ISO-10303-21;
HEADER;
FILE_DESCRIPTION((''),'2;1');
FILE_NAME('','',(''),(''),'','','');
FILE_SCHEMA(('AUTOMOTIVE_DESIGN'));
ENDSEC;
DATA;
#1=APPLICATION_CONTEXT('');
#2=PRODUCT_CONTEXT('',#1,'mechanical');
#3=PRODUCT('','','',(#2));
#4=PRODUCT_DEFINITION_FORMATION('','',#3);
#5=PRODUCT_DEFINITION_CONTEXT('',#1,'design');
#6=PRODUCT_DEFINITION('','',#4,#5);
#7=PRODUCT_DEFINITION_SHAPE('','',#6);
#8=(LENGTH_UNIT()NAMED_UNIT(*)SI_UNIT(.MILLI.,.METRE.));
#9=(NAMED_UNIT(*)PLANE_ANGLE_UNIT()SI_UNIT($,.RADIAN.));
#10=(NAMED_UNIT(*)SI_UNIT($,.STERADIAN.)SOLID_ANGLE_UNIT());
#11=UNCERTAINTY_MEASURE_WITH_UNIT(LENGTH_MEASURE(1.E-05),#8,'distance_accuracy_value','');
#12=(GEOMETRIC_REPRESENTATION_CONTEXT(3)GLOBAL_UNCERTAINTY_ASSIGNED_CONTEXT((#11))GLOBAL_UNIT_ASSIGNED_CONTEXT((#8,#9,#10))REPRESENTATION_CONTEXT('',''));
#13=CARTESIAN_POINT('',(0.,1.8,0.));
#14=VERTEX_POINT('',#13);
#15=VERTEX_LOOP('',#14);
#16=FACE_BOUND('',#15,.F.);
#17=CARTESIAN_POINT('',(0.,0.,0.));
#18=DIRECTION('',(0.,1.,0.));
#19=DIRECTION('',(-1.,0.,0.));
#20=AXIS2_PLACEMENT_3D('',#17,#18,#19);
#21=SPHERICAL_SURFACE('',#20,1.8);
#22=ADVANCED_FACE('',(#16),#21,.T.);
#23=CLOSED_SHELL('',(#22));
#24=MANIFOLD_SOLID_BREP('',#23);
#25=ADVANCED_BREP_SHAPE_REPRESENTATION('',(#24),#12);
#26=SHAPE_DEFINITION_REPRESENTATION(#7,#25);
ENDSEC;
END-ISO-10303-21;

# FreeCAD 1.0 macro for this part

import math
import FreeCAD as App
import Part
import Sketcher

doc = App.newDocument("Part")
body = doc.addObject("PartDesign::Body", "Body")

sketch1 = body.newObject("Sketcher::SketchObject", "Sketch")
sketch1.AttachmentSupport = (doc.getObject("XY_Plane"), [""])
sketch1.MapMode = "FlatFace"
sketch1.addGeometry([
    Part.LineSegment(App.Vector(0, -1.8, 0), App.Vector(0, 1.8, 0)),
    Part.ArcOfCircle(Part.Circle(App.Vector(0, 0, 0), App.Vector(0, 0, 1), 1.8), math.radians(90), math.radians(270)),
], False)
sketch1.addConstraint([
    Sketcher.Constraint("Coincident", 0, 1, 1, 2),
    Sketcher.Constraint("Coincident", 1, 1, 0, 2),
    Sketcher.Constraint("Vertical", 0),
    Sketcher.Constraint("Coincident", 1, 3, -1, 1),
    Sketcher.Constraint("PointOnObject", 0, 1, -2),
    Sketcher.Constraint("Radius", 1, 1.8),
])
revolution = body.newObject("PartDesign::Revolution", "Revolution")
revolution.Profile = sketch1
revolution.ReferenceAxis = (sketch1, ["V_Axis"])
revolution.Angle = 360

doc.recompute()
